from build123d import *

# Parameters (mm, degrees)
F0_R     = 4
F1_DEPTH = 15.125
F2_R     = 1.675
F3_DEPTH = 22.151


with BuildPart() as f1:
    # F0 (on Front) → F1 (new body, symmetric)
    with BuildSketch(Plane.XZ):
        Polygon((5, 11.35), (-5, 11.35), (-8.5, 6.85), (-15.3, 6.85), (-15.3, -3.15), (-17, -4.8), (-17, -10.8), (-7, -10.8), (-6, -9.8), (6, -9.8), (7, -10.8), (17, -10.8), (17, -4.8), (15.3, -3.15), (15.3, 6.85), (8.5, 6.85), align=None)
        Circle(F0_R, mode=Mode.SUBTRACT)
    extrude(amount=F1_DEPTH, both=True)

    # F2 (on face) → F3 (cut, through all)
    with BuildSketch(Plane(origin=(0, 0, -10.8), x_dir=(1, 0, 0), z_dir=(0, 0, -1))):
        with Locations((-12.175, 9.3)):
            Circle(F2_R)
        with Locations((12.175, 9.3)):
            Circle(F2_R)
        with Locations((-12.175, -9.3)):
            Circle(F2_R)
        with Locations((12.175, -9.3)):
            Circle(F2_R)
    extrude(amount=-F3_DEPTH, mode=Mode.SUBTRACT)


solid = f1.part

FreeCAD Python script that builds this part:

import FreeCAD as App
import Part
import Sketcher
from FreeCAD import Vector


def add_polygon(sketch, points):
    """Adds a closed chain of lines whose ends are joined by coincident constraints."""
    first, n = sketch.GeometryCount, len(points)
    for a, b in zip(points, points[1:] + points[:1]):
        sketch.addGeometry(Part.LineSegment(App.Vector(*a, 0), App.Vector(*b, 0)), False)
    for i in range(n):
        sketch.addConstraint(Sketcher.Constraint("Coincident", first + i, 2, first + (i + 1) % n, 1))

doc = App.newDocument("Part")
body = doc.addObject("PartDesign::Body", "Body")

sketch1 = body.newObject("Sketcher::SketchObject", "Sketch")
sketch1.AttachmentSupport = (doc.getObject("XZ_Plane"), [""])
sketch1.MapMode = "FlatFace"
add_polygon(sketch1, [(5, 11.3), (-5, 11.3), (-8.5, 6.8), (-15.3, 6.8), (-15.3, -3.1), (-17, -4.8), (-17, -10.8), (-7, -10.8), (-6, -9.8), (6, -9.8), (7, -10.8), (17, -10.8), (17, -4.8), (15.3, -3.1), (15.3, 6.8), (8.5, 6.8)])
sketch1.addGeometry(Part.Circle(Vector(0, 0, 0), Vector(0, 0, 1), 4), False)
sketch1.addConstraint([
    Sketcher.Constraint("Horizontal", 0),
    Sketcher.Constraint("Horizontal", 2),
    Sketcher.Constraint("Vertical", 3),
    Sketcher.Constraint("Vertical", 5),
    Sketcher.Constraint("Horizontal", 6),
    Sketcher.Constraint("Horizontal", 8),
    Sketcher.Constraint("Horizontal", 10),
    Sketcher.Constraint("Vertical", 11),
    Sketcher.Constraint("Vertical", 13),
    Sketcher.Constraint("Horizontal", 14),
    Sketcher.Constraint("Coincident", 16, 3, -1, 1),
    Sketcher.Constraint("Symmetric", 6, 2, 9, 2, -2),
    Sketcher.Constraint("Symmetric", 4, 2, 11, 2, -2),
    Sketcher.Constraint("Symmetric", 3, 2, 12, 2, -2),
    Sketcher.Constraint("Symmetric", 1, 2, 14, 2, -2),
    Sketcher.Constraint("Perpendicular", 7, 9),
    Sketcher.Constraint("Equal", 0, 6),
    Sketcher.Constraint("Equal", 10, 3),
    Sketcher.Constraint("Equal", 7, 9),
    Sketcher.Constraint("Equal", 1, 15),
    Sketcher.Constraint("Diameter", 16, 8.0),
    Sketcher.Constraint("DistanceX", 0, 2, 0, 1, 10.0),
    Sketcher.Constraint("DistanceX", 8, 1, 8, 2, 12.0),
    Sketcher.Constraint("DistanceY", 5, 2, 5, 1, 6.0),
    Sketcher.Constraint("DistanceX", 2, 2, 2, 1, 6.8),
    Sketcher.Constraint("DistanceX", 4, 2, -1, 1, 17.0),
    Sketcher.Constraint("DistanceX", 1, 2, -1, 1, 8.5),
    Sketcher.Constraint("DistanceY", 4, 2, -1, 1, 4.8),
    Sketcher.Constraint("DistanceY", 1, 2, 0, 2, 4.5),
    Sketcher.Constraint("DistanceY", -1, 1, 0, 2, 11.35),
])
pad1 = body.newObject("PartDesign::Pad", "Pad")
pad1.Profile = sketch1
pad1.Length = 30.25
pad1.Midplane = True

sketch2 = body.newObject("Sketcher::SketchObject", "Sketch001")
sketch2.AttachmentSupport = (doc.getObject("XY_Plane"), [""])
sketch2.MapMode = "FlatFace"
sketch2.AttachmentOffset = App.Placement(Vector(0, 0, -10.8), App.Rotation())
sketch2.addGeometry([
    Part.Circle(Vector(-12.2, -9.3, 0), Vector(0, 0, 1), 1.7),
    Part.Circle(Vector(12.2, -9.3, 0), Vector(0, 0, 1), 1.7),
    Part.Circle(Vector(-12.2, 9.3, 0), Vector(0, 0, 1), 1.7),
    Part.Circle(Vector(12.2, 9.3, 0), Vector(0, 0, 1), 1.7),
], False)
sketch2.addConstraint([
    Sketcher.Constraint("Equal", 0, 1),
    Sketcher.Constraint("Equal", 1, 2),
    Sketcher.Constraint("Equal", 2, 3),
    Sketcher.Constraint("Symmetric", 1, 3, 2, 3, -1, 1),
    Sketcher.Constraint("Symmetric", 0, 3, 3, 3, -1, 1),
    Sketcher.Constraint("Symmetric", 0, 3, 1, 3, -2),
    Sketcher.Constraint("Diameter", 0, 3.35),
    Sketcher.Constraint("DistanceY", 0, 3, -1, 1, 9.3),
    Sketcher.Constraint("DistanceX", 0, 3, 1, 3, 24.35),
])
pocket1 = body.newObject("PartDesign::Pocket", "Pocket")
pocket1.Profile = sketch2
pocket1.Type = "ThroughAll"
pocket1.Reversed = True

doc.recompute()
